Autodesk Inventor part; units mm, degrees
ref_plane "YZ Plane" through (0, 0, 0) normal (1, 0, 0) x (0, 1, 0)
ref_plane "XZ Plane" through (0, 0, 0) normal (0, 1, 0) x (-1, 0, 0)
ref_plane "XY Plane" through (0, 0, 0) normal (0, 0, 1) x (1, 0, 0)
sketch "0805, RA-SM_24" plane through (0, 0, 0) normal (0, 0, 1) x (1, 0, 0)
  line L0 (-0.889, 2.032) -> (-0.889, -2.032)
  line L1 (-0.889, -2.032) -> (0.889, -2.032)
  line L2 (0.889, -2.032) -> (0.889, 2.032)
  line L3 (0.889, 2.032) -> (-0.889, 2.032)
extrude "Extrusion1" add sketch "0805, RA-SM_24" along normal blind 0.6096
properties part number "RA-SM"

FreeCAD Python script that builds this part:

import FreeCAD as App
import Part
import Sketcher
Q = App.Units.Quantity


def add_polygon(sketch, points):
    """Adds a closed chain of lines whose ends are joined by coincident constraints."""
    first, n = sketch.GeometryCount, len(points)
    for a, b in zip(points, points[1:] + points[:1]):
        sketch.addGeometry(Part.LineSegment(App.Vector(*a, 0), App.Vector(*b, 0)), False)
    for i in range(n):
        sketch.addConstraint(Sketcher.Constraint("Coincident", first + i, 2, first + (i + 1) % n, 1))

doc = App.newDocument("Part")
body = doc.addObject("PartDesign::Body", "Body")

# Sketch on XY plane
sketch1 = body.newObject("Sketcher::SketchObject", "Sketch")
sketch1.AttachmentSupport = (doc.getObject("XY_Plane"), [""])
sketch1.MapMode = "FlatFace"
add_polygon(sketch1, [(0.9, 2), (-0.9, 2), (-0.9, -2), (0.9, -2)])  # lines 0-3
sketch1.addConstraint([
    Sketcher.Constraint("Horizontal", 0),
    Sketcher.Constraint("Vertical", 1),
    Sketcher.Constraint("Horizontal", 2),
    Sketcher.Constraint("Vertical", 3),
    Sketcher.Constraint("Symmetric", 0, 2, 2, 2, -1, 1),
    Sketcher.Constraint("DistanceX", 0, 2, 0, 1, Q("0.07 in")),
    Sketcher.Constraint("DistanceY", 1, 2, 1, 1, Q("0.16 in")),
])
pad1 = body.newObject("PartDesign::Pad", "Pad")
pad1.Profile = sketch1
pad1.Length = Q("0.024 in")

doc.recompute()
